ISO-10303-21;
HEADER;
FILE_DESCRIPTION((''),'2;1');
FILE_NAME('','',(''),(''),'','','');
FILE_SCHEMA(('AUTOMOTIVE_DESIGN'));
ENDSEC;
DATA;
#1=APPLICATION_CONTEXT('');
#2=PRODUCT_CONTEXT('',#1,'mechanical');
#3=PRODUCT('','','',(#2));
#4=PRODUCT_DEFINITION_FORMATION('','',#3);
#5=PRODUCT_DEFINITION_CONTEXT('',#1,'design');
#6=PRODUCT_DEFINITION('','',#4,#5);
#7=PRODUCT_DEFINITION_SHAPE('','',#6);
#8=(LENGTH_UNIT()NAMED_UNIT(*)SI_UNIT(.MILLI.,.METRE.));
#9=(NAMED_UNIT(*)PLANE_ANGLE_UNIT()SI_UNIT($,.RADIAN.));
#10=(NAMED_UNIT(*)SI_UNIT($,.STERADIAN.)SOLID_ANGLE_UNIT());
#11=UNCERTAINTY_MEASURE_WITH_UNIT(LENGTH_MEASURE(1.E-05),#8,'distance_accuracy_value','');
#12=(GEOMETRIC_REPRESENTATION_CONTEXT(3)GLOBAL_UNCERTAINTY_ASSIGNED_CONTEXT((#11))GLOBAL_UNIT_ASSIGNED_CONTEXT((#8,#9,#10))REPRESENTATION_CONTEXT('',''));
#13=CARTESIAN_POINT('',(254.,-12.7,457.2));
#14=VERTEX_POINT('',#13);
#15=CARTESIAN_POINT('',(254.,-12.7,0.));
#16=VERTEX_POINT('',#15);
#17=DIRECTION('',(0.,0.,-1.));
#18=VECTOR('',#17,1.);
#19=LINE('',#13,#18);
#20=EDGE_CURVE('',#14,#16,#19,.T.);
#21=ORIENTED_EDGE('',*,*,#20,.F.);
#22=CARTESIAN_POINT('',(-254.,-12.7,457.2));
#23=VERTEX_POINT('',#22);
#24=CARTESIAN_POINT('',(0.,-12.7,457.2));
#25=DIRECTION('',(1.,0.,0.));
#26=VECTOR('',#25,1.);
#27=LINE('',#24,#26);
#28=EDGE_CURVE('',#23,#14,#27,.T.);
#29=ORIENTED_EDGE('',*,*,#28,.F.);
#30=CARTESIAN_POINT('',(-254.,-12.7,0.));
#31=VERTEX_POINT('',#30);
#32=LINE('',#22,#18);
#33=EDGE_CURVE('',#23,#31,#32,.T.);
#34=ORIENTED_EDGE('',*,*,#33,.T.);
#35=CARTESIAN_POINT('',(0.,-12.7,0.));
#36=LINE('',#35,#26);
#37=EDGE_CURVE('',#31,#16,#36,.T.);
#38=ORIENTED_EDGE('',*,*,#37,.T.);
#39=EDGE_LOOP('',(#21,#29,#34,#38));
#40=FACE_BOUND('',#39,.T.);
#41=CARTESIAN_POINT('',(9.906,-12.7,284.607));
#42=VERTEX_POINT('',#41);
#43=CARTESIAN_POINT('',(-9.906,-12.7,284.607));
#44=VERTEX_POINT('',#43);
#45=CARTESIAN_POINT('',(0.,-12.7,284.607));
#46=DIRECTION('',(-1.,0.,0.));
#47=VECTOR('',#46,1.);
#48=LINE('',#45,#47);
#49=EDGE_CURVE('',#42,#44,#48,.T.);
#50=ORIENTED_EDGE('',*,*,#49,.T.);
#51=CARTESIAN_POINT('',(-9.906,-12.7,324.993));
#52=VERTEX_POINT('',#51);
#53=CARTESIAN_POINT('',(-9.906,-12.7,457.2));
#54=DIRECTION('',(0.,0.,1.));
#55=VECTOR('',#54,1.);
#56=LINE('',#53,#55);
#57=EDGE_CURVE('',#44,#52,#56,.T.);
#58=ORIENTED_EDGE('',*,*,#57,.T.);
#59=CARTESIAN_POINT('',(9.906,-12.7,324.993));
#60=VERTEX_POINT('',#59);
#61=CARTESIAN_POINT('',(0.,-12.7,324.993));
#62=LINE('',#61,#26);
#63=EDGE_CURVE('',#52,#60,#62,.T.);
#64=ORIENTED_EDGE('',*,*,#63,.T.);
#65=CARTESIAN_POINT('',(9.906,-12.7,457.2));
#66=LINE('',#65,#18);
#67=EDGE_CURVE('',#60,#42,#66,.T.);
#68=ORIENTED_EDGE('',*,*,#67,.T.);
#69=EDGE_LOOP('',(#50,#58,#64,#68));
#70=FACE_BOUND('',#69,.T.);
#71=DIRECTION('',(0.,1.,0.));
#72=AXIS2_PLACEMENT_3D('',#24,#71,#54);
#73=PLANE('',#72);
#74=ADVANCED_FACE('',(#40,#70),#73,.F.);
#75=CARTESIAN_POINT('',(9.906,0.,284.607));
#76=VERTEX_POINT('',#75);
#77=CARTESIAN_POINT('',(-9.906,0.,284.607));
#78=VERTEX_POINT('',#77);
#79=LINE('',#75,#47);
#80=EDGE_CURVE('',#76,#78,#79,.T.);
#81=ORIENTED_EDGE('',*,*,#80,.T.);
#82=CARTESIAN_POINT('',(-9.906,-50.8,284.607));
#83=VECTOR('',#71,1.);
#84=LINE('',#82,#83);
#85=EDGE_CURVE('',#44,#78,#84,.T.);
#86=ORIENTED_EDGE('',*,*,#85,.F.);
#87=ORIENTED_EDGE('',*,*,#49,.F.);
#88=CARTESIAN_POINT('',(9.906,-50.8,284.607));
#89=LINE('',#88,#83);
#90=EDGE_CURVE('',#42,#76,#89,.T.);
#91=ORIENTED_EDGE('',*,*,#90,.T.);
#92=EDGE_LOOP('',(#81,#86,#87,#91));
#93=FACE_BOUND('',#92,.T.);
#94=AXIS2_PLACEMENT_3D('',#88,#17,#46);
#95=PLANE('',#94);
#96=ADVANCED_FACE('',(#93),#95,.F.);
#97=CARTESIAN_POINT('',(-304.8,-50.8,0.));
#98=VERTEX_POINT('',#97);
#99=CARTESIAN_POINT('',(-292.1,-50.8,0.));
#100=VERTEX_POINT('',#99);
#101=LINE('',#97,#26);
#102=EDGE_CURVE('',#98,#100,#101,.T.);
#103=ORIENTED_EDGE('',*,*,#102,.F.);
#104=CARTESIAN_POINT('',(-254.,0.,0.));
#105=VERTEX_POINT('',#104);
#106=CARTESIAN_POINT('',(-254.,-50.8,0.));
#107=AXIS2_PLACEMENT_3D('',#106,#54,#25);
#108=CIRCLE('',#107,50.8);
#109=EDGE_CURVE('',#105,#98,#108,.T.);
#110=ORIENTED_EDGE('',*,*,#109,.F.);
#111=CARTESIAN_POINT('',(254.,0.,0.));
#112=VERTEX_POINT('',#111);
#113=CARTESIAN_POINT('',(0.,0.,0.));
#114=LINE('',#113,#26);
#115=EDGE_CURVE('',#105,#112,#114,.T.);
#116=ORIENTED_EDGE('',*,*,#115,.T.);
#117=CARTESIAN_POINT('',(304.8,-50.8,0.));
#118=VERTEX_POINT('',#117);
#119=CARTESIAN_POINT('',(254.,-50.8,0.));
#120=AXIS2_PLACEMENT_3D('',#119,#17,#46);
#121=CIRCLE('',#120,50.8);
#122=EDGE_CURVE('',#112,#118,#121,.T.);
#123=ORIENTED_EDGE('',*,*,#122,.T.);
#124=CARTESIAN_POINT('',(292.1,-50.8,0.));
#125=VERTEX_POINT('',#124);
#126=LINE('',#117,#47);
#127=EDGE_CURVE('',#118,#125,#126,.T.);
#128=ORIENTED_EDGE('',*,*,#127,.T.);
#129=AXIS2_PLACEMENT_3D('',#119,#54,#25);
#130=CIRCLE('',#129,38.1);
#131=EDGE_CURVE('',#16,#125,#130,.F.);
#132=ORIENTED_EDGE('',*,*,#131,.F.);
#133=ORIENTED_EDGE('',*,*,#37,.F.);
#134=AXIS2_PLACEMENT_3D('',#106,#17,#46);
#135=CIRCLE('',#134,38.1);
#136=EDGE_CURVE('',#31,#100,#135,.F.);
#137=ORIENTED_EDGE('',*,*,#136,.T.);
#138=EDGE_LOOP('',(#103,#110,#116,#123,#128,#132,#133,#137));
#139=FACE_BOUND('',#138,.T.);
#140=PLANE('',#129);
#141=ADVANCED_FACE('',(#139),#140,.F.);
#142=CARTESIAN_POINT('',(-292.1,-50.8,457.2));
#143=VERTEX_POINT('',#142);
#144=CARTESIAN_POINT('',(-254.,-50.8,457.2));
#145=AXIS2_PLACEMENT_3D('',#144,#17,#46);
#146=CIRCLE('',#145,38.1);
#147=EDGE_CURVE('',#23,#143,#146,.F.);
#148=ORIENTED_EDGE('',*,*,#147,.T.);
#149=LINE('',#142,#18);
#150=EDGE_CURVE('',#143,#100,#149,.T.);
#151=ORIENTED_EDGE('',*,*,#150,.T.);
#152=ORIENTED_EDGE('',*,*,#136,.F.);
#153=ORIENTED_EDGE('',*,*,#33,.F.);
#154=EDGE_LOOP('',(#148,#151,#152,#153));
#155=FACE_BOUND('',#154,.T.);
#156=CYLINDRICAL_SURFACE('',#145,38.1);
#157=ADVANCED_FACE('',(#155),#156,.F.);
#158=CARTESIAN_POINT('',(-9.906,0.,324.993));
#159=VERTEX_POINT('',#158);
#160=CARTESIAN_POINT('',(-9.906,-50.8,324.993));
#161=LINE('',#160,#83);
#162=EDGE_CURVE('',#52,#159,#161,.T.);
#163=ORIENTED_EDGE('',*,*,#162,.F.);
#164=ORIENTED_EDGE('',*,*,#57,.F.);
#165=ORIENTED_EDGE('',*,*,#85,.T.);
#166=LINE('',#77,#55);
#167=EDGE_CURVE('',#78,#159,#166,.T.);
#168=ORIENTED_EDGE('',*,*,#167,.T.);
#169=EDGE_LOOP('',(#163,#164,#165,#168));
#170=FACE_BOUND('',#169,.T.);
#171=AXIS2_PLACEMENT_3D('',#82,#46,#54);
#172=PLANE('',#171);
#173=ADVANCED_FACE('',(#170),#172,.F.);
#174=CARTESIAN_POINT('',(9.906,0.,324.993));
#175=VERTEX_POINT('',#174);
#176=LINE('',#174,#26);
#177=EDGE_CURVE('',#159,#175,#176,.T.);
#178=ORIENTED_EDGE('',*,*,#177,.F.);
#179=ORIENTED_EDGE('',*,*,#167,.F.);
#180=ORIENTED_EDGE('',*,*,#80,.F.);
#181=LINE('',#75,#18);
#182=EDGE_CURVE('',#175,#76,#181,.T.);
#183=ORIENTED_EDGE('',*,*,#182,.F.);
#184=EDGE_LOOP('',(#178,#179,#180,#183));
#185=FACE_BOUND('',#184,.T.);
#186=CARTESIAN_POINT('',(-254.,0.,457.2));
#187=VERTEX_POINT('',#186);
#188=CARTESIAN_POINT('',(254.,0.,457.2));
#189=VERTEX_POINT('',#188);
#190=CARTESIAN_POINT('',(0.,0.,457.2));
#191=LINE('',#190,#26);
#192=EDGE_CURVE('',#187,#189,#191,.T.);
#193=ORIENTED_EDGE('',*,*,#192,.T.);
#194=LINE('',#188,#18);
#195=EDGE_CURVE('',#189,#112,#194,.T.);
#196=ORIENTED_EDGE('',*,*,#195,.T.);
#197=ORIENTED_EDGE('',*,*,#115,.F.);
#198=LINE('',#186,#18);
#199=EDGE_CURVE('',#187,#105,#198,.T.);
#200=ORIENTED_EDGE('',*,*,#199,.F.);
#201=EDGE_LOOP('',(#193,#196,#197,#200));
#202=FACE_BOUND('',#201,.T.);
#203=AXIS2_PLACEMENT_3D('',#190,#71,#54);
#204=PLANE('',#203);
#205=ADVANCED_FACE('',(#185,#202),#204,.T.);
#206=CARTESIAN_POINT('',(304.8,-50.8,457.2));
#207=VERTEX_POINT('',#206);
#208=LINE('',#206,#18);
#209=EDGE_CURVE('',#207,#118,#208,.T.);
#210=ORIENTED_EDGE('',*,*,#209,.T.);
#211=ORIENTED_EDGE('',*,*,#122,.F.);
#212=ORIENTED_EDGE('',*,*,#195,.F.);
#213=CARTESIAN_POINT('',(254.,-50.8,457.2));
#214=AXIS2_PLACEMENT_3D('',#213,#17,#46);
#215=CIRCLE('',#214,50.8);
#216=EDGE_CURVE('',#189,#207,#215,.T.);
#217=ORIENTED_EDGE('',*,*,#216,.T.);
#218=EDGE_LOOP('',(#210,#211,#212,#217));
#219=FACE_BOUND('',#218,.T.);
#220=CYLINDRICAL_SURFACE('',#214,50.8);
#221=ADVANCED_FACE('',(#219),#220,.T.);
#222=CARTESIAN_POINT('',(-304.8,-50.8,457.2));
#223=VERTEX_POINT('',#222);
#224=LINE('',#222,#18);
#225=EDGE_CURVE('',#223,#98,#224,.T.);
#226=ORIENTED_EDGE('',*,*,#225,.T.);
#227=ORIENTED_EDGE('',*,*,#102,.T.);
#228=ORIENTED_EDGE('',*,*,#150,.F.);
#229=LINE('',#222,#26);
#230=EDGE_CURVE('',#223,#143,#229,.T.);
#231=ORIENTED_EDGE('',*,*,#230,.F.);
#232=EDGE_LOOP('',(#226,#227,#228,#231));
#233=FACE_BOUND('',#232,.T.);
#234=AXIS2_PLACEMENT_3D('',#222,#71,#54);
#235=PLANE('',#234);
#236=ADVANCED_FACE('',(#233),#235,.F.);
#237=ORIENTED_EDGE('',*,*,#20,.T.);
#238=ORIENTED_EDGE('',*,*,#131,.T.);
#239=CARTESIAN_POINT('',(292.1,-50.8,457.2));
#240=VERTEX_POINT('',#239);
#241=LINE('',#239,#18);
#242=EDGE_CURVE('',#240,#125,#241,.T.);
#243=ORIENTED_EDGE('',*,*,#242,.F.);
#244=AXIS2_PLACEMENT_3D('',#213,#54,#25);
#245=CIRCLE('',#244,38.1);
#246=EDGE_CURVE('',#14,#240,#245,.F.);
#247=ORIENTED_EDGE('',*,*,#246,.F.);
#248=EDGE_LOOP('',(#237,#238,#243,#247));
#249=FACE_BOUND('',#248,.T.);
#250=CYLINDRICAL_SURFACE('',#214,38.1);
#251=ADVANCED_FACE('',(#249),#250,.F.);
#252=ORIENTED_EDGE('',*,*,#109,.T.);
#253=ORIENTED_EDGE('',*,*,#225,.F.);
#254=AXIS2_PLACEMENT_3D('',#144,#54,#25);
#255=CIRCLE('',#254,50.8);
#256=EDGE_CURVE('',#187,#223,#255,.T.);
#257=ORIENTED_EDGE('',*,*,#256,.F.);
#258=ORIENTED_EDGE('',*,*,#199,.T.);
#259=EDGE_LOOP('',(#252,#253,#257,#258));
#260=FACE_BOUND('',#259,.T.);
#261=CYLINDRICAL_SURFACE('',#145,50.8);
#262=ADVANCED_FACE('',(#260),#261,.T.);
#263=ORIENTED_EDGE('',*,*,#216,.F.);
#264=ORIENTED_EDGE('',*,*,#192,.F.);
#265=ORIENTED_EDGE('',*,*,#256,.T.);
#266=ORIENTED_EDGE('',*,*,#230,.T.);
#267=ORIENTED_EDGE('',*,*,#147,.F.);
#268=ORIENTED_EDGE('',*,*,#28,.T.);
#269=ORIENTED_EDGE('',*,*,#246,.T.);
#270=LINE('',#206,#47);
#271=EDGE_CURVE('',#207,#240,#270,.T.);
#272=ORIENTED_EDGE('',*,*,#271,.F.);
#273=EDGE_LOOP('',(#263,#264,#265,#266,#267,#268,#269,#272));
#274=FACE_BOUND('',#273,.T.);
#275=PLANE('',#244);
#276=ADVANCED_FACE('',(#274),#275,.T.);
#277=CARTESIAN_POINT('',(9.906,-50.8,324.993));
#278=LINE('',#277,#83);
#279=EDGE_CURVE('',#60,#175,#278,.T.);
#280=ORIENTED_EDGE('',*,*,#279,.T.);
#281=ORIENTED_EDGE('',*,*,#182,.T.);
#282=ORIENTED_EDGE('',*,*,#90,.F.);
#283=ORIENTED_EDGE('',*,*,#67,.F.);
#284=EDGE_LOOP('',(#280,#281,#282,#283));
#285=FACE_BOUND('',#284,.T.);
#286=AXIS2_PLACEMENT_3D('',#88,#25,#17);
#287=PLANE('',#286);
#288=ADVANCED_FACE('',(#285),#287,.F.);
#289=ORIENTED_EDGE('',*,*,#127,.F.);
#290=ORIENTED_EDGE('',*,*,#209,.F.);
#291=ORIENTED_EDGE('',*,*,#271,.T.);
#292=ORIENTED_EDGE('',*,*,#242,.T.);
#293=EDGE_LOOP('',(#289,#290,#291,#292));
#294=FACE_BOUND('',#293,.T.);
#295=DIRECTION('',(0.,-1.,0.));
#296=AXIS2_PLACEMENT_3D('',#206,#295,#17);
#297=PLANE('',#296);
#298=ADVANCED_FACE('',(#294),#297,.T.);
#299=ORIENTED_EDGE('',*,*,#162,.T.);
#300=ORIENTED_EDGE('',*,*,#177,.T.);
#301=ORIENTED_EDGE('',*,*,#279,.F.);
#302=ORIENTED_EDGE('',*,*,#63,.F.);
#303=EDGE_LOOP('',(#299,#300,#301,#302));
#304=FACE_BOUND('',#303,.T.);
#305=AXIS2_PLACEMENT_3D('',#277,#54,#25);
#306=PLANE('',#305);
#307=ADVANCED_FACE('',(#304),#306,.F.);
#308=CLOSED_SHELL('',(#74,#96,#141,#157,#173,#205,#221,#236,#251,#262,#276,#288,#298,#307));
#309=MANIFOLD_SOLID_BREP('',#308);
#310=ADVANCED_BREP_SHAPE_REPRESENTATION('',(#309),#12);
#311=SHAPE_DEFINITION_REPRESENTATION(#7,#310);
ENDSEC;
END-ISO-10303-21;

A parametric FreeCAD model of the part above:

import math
import FreeCAD as App
import Part
import Sketcher
Q = App.Units.Quantity

doc = App.newDocument("Part")
body = doc.addObject("PartDesign::Body", "Body")

# Sketch on XY plane
sketch1 = body.newObject("Sketcher::SketchObject", "Sketch")
sketch1.AttachmentSupport = (doc.getObject("XY_Plane"), [""])
sketch1.MapMode = "FlatFace"
sketch1.addGeometry(Part.LineSegment(App.Vector(254, 0, 0), App.Vector(0, 0, 0)), False)
sketch1.addGeometry(Part.LineSegment(App.Vector(0, 0, 0), App.Vector(0, -13, 0)), False)
sketch1.addGeometry(Part.LineSegment(App.Vector(0, -13, 0), App.Vector(254, -13, 0)), False)
sketch1.addGeometry(Part.ArcOfCircle(Part.Circle(App.Vector(254, -51, 0), App.Vector(0, 0, 1), 38), math.radians(0), math.radians(90)), False)
sketch1.addGeometry(Part.LineSegment(App.Vector(292, -51, 0), App.Vector(305, -51, 0)), False)
sketch1.addGeometry(Part.ArcOfCircle(Part.Circle(App.Vector(254, -51, 0), App.Vector(0, 0, 1), 51), math.radians(0), math.radians(90)), False)
sketch1.addConstraint(Sketcher.Constraint("Coincident", 0, 2, 1, 1))
sketch1.addConstraint(Sketcher.Constraint("Coincident", 1, 2, 2, 1))
sketch1.addConstraint(Sketcher.Constraint("Tangent", 2, 2, 3, 2))
sketch1.addConstraint(Sketcher.Constraint("Coincident", 3, 1, 4, 1))
sketch1.addConstraint(Sketcher.Constraint("Coincident", 4, 2, 5, 1))
sketch1.addConstraint(Sketcher.Constraint("Tangent", 5, 2, 0, 1))
sketch1.addConstraint(Sketcher.Constraint("Horizontal", 0))
sketch1.addConstraint(Sketcher.Constraint("Vertical", 1))
sketch1.addConstraint(Sketcher.Constraint("Horizontal", 2))
sketch1.addConstraint(Sketcher.Constraint("Horizontal", 4))
sketch1.addConstraint(Sketcher.Constraint("Coincident", 0, 2, -1, 1))
sketch1.addConstraint(Sketcher.Constraint("Coincident", 5, 3, 3, 3))
sketch1.addConstraint(Sketcher.Constraint("Horizontal", 5, 3, 3, 1))
sketch1.addConstraint(Sketcher.Constraint("Radius", 5, Q("2 in")))
sketch1.addConstraint(Sketcher.Constraint("Radius", 3, Q("1.5 in")))
sketch1.addConstraint(Sketcher.Constraint("DistanceX", 0, 2, 0, 1, Q("10 in")))
pad1 = body.newObject("PartDesign::Pad", "Pad")
pad1.Profile = sketch1
pad1.Length = Q("18 in")
doc.recompute()

mirrored = body.newObject("PartDesign::Mirrored", "Mirrored")
mirrored.Originals = [pad1]
mirrored.MirrorPlane = (doc.getObject("YZ_Plane"), [""])
body.Tip = mirrored

# Sketch on XZ plane
sketch2 = body.newObject("Sketcher::SketchObject", "Sketch001")
sketch2.AttachmentSupport = (doc.getObject("XZ_Plane"), [""])
sketch2.MapMode = "FlatFace"
sketch2.addGeometry(Part.LineSegment(App.Vector(-10, 285, 0), App.Vector(-10, 325, 0)), False)
sketch2.addGeometry(Part.LineSegment(App.Vector(-10, 325, 0), App.Vector(10, 325, 0)), False)
sketch2.addGeometry(Part.LineSegment(App.Vector(10, 325, 0), App.Vector(10, 285, 0)), False)
sketch2.addGeometry(Part.LineSegment(App.Vector(10, 285, 0), App.Vector(-10, 285, 0)), False)
sketch2.addConstraint(Sketcher.Constraint("Coincident", 0, 2, 1, 1))
sketch2.addConstraint(Sketcher.Constraint("Coincident", 1, 2, 2, 1))
sketch2.addConstraint(Sketcher.Constraint("Coincident", 2, 2, 3, 1))
sketch2.addConstraint(Sketcher.Constraint("Coincident", 3, 2, 0, 1))
sketch2.addConstraint(Sketcher.Constraint("Vertical", 0))
sketch2.addConstraint(Sketcher.Constraint("Horizontal", 1))
sketch2.addConstraint(Sketcher.Constraint("Vertical", 2))
sketch2.addConstraint(Sketcher.Constraint("Horizontal", 3))
sketch2.addConstraint(Sketcher.Constraint("DistanceX", 1, 1, 1, 2, Q("0.78 in")))
sketch2.addConstraint(Sketcher.Constraint("DistanceY", 0, 1, 0, 2, Q("1.59 in")))
sketch2.addConstraint(Sketcher.Constraint("DistanceX", 0, 2, -1, 1, Q("0.39 in")))
sketch2.addConstraint(Sketcher.Constraint("DistanceY", -1, 1, 0, 2, Q("12.795 in")))
pocket1 = body.newObject("PartDesign::Pocket", "Pocket")
pocket1.Profile = sketch2
pocket1.Type = "ThroughAll"
pocket1.Reversed = True

doc.recompute()
